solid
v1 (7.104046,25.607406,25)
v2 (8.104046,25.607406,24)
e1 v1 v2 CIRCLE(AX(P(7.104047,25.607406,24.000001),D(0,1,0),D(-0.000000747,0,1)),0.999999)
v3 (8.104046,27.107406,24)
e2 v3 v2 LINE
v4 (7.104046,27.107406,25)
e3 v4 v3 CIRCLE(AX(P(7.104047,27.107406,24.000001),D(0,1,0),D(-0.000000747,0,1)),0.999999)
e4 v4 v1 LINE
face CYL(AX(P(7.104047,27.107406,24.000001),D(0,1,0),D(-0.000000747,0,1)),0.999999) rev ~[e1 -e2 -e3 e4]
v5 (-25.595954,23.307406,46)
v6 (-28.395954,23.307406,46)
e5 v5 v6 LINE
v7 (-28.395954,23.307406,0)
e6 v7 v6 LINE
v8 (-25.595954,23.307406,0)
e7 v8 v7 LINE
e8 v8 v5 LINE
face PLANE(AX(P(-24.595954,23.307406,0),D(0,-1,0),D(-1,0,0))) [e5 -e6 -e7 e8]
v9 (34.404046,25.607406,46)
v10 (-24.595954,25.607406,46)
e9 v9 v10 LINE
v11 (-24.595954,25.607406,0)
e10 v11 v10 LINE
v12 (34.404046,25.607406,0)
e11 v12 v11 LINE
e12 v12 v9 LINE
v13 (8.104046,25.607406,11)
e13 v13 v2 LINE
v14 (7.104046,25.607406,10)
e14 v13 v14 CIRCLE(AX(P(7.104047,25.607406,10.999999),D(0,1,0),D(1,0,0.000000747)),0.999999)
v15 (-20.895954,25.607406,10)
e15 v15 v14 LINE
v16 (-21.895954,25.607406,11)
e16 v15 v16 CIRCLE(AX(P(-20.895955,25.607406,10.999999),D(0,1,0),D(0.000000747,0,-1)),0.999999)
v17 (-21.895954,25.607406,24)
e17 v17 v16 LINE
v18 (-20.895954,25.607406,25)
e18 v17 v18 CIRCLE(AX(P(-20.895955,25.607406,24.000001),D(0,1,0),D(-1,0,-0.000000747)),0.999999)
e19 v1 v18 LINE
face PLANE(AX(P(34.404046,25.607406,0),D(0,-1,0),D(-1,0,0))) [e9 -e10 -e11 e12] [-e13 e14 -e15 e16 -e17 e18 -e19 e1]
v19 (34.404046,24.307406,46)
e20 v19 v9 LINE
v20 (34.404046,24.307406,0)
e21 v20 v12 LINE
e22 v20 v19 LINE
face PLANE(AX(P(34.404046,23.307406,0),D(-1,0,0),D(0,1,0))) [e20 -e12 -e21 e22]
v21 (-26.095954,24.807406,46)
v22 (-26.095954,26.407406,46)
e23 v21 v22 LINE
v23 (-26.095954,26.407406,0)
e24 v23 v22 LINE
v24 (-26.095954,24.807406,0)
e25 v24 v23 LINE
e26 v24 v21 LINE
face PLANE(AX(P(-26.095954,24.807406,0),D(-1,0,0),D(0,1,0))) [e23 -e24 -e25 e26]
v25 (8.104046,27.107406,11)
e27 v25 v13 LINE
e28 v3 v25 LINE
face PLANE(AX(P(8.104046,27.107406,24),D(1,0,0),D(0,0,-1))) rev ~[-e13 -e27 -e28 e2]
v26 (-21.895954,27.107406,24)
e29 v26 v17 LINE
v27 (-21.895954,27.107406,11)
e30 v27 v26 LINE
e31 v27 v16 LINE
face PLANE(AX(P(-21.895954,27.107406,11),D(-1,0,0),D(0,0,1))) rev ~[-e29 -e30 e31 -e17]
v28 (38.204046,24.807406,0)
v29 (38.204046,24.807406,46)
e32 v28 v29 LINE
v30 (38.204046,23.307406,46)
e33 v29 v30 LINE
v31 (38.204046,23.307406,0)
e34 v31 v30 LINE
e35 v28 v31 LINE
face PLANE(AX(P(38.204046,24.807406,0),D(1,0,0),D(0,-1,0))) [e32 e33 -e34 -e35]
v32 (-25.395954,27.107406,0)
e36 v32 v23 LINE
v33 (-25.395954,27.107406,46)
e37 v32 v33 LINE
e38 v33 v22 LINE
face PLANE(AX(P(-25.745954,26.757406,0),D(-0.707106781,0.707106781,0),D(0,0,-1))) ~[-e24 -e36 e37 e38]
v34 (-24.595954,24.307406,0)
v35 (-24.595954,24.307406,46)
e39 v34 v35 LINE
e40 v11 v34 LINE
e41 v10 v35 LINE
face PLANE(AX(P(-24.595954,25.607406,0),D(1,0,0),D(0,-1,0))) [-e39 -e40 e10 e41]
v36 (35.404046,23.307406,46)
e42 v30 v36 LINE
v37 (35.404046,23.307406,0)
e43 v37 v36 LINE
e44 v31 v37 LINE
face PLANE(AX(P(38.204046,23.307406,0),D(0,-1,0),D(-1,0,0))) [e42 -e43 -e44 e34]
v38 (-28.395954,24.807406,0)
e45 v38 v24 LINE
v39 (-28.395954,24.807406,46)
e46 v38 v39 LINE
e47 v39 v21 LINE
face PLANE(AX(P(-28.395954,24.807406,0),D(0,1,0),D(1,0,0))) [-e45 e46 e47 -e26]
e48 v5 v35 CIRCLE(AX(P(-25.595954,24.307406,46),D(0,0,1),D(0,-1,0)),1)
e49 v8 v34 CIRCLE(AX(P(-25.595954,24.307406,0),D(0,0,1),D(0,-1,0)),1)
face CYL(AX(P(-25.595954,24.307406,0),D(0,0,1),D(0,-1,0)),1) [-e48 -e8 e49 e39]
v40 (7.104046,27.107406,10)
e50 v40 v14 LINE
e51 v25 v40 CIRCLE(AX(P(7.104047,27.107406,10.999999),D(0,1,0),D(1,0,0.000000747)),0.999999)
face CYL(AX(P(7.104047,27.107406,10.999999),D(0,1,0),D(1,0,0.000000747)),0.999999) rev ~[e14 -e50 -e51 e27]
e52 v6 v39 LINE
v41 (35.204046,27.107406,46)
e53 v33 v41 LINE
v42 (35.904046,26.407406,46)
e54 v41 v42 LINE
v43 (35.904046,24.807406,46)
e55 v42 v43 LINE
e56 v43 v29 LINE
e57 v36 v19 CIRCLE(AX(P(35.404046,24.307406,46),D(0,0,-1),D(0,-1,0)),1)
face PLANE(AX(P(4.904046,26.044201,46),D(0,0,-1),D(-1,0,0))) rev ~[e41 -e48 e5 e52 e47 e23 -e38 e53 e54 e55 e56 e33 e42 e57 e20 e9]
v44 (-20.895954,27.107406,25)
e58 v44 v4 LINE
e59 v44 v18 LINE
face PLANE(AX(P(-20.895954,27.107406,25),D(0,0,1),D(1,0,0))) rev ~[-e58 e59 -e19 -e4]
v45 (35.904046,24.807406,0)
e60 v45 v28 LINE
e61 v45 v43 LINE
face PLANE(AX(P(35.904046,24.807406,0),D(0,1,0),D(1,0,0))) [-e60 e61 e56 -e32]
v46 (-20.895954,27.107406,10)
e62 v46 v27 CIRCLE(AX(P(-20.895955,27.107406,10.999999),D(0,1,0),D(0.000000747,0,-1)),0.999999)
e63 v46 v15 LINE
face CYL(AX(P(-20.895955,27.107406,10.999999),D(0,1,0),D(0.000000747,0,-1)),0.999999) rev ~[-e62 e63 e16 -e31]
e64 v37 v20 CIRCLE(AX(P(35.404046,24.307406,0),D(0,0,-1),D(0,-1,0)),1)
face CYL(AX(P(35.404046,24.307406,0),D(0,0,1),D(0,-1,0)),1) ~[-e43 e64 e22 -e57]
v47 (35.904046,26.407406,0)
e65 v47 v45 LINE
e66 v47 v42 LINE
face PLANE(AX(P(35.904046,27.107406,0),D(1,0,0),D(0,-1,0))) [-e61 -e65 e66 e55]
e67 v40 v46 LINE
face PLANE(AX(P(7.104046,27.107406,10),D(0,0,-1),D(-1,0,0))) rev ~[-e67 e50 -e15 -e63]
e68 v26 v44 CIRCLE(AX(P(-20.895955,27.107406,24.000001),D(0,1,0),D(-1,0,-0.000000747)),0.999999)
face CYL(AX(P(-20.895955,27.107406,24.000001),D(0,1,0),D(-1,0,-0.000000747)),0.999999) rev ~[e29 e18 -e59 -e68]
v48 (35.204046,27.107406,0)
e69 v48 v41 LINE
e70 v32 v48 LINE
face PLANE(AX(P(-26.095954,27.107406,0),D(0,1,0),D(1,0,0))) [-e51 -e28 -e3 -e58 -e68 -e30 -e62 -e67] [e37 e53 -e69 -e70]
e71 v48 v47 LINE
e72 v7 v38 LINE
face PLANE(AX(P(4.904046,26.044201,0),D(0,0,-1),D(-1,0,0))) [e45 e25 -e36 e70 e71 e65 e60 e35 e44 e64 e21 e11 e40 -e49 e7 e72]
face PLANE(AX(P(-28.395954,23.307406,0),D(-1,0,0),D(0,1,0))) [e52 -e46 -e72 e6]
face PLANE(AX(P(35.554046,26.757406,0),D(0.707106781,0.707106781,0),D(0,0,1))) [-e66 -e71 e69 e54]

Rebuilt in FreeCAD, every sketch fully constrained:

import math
import FreeCAD as App
import Part
import Sketcher
from FreeCAD import Vector
Q = App.Units.Quantity


def edges_at(feature, points):
    """Names of the edges that pass closest to the given points."""
    edges = feature.Shape.Edges
    near = lambda p: min(range(len(edges)), key=lambda i: edges[i].distToShape(Part.Vertex(*p))[0])
    return sorted({f"Edge{near(p) + 1}" for p in points})

doc = App.newDocument("Part")
body = doc.addObject("PartDesign::Body", "Body")

# Sketch on XY plane
sketch1 = body.newObject("Sketcher::SketchObject", "Sketch")
sketch1.AttachmentSupport = (doc.getObject("XY_Plane"), [""])
sketch1.MapMode = "FlatFace"
sketch1.addGeometry(Part.LineSegment(Vector(35.904046, 27.107406, 0), Vector(-26.095954, 27.107406, 0)), False)
sketch1.addGeometry(Part.LineSegment(Vector(-26.095954, 27.107406, 0), Vector(-26.095954, 24.807406, 0)), False)
sketch1.addGeometry(Part.LineSegment(Vector(-26.095954, 24.807406, 0), Vector(-28.395954, 24.807406, 0)), False)
sketch1.addGeometry(Part.LineSegment(Vector(-28.395954, 24.807406, 0), Vector(-28.395954, 23.307406, 0)), False)
sketch1.addGeometry(Part.LineSegment(Vector(-28.395954, 23.307406, 0), Vector(-24.595954, 23.307406, 0)), False)
sketch1.addGeometry(Part.LineSegment(Vector(-24.595954, 23.307406, 0), Vector(-24.595954, 25.607406, 0)), False)
sketch1.addGeometry(Part.LineSegment(Vector(-24.595954, 25.607406, 0), Vector(34.404046, 25.607406, 0)), False)
sketch1.addGeometry(Part.LineSegment(Vector(34.404046, 25.607406, 0), Vector(34.404046, 23.307406, 0)), False)
sketch1.addGeometry(Part.LineSegment(Vector(34.404046, 23.307406, 0), Vector(38.204046, 23.307406, 0)), False)
sketch1.addGeometry(Part.LineSegment(Vector(38.204046, 23.307406, 0), Vector(38.204046, 24.807406, 0)), False)
sketch1.addGeometry(Part.LineSegment(Vector(38.204046, 24.807406, 0), Vector(35.904046, 24.807406, 0)), False)
sketch1.addGeometry(Part.LineSegment(Vector(35.904046, 24.807406, 0), Vector(35.904046, 27.107406, 0)), False)
sketch1.addConstraint(Sketcher.Constraint("Coincident", 0, 2, 1, 1))
sketch1.addConstraint(Sketcher.Constraint("Coincident", 1, 2, 2, 1))
sketch1.addConstraint(Sketcher.Constraint("Coincident", 2, 2, 3, 1))
sketch1.addConstraint(Sketcher.Constraint("Coincident", 3, 2, 4, 1))
sketch1.addConstraint(Sketcher.Constraint("Coincident", 4, 2, 5, 1))
sketch1.addConstraint(Sketcher.Constraint("Coincident", 5, 2, 6, 1))
sketch1.addConstraint(Sketcher.Constraint("Coincident", 6, 2, 7, 1))
sketch1.addConstraint(Sketcher.Constraint("Coincident", 7, 2, 8, 1))
sketch1.addConstraint(Sketcher.Constraint("Coincident", 8, 2, 9, 1))
sketch1.addConstraint(Sketcher.Constraint("Coincident", 9, 2, 10, 1))
sketch1.addConstraint(Sketcher.Constraint("Coincident", 10, 2, 11, 1))
sketch1.addConstraint(Sketcher.Constraint("Coincident", 11, 2, 0, 1))
sketch1.addConstraint(Sketcher.Constraint("Horizontal", 0))
sketch1.addConstraint(Sketcher.Constraint("Vertical", 1))
sketch1.addConstraint(Sketcher.Constraint("Horizontal", 2))
sketch1.addConstraint(Sketcher.Constraint("Vertical", 3))
sketch1.addConstraint(Sketcher.Constraint("Horizontal", 4))
sketch1.addConstraint(Sketcher.Constraint("Vertical", 5))
sketch1.addConstraint(Sketcher.Constraint("Horizontal", 6))
sketch1.addConstraint(Sketcher.Constraint("Vertical", 7))
sketch1.addConstraint(Sketcher.Constraint("Horizontal", 8))
sketch1.addConstraint(Sketcher.Constraint("Vertical", 9))
sketch1.addConstraint(Sketcher.Constraint("Horizontal", 10))
sketch1.addConstraint(Sketcher.Constraint("Vertical", 11))
sketch1.addConstraint(Sketcher.Constraint("Horizontal", 4, 2, 7, 2))
sketch1.addConstraint(Sketcher.Constraint("Horizontal", 2, 2, 9, 2))
sketch1.addConstraint(Sketcher.Constraint("Equal", 4, 8))
sketch1.addConstraint(Sketcher.Constraint("Equal", 2, 10))
sketch1.addConstraint(Sketcher.Constraint("Equal", 10, 1))
sketch1.addConstraint(Sketcher.Constraint("Equal", 1, 5))
sketch1.addConstraint(Sketcher.Constraint("DistanceX", 0, 2, 0, 1, Q("62 mm")))
sketch1.addConstraint(Sketcher.Constraint("DistanceX", 6, 1, 6, 2, Q("59 mm")))
sketch1.addConstraint(Sketcher.Constraint("DistanceX", 2, 2, 2, 1, Q("2.3 mm")))
sketch1.addConstraint(Sketcher.Constraint("DistanceY", 3, 2, 3, 1, Q("1.5 mm")))
sketch1.addConstraint(Sketcher.Constraint("DistanceX", 0, 2, -1, 1, Q("26.095954 mm")))
sketch1.addConstraint(Sketcher.Constraint("DistanceY", -1, 1, 0, 2, Q("27.107406 mm")))
pad1 = body.newObject("PartDesign::Pad", "Pad")
pad1.Profile = sketch1
pad1.Length = 46
doc.recompute()

chamfer = body.newObject("PartDesign::Chamfer", "Chamfer")
chamfer.Base = (pad1, edges_at(pad1, [(35.904, 27.107, 23), (-26.096, 27.107, 23)]))
chamfer.Size = 0.7
doc.recompute()

fillet = body.newObject("PartDesign::Fillet", "Fillet")
fillet.Base = (chamfer, edges_at(chamfer, [(-24.596, 23.307, 23), (34.404, 23.307, 23)]))
fillet.Radius = 1

# Sketch on XZ plane
sketch2 = body.newObject("Sketcher::SketchObject", "Sketch001")
sketch2.AttachmentSupport = (doc.getObject("XZ_Plane"), [""])
sketch2.MapMode = "FlatFace"
sketch2.AttachmentOffset = App.Placement(Vector(0, 0, -27.107406), App.Rotation())
sketch2.addGeometry(Part.LineSegment(Vector(-20.895954, 25, 0), Vector(7.104046, 25, 0)), False)
sketch2.addGeometry(Part.ArcOfCircle(Part.Circle(Vector(7.104047, 24.000001, 0), Vector(0, 0, 1), 0.999999), math.radians(-0.000043), math.radians(90.000043)), False)
sketch2.addGeometry(Part.LineSegment(Vector(8.104046, 24, 0), Vector(8.104046, 11, 0)), False)
sketch2.addGeometry(Part.ArcOfCircle(Part.Circle(Vector(7.104047, 10.999999, 0), Vector(0, 0, 1), 0.999999), math.radians(-90.000043), math.radians(0.000043)), False)
sketch2.addGeometry(Part.LineSegment(Vector(7.104046, 10, 0), Vector(-20.895954, 10, 0)), False)
sketch2.addGeometry(Part.ArcOfCircle(Part.Circle(Vector(-20.895955, 10.999999, 0), Vector(0, 0, 1), 0.999999), math.radians(179.999957), math.radians(270.000043)), False)
sketch2.addGeometry(Part.LineSegment(Vector(-21.895954, 11, 0), Vector(-21.895954, 24, 0)), False)
sketch2.addGeometry(Part.ArcOfCircle(Part.Circle(Vector(-20.895955, 24.000001, 0), Vector(0, 0, 1), 0.999999), math.radians(89.999957), math.radians(180.000043)), False)
sketch2.addConstraint(Sketcher.Constraint("Tangent", 0, 2, 1, 2))
sketch2.addConstraint(Sketcher.Constraint("Tangent", 1, 1, 2, 1))
sketch2.addConstraint(Sketcher.Constraint("Tangent", 2, 2, 3, 2))
sketch2.addConstraint(Sketcher.Constraint("Tangent", 3, 1, 4, 1))
sketch2.addConstraint(Sketcher.Constraint("Tangent", 4, 2, 5, 2))
sketch2.addConstraint(Sketcher.Constraint("Tangent", 5, 1, 6, 1))
sketch2.addConstraint(Sketcher.Constraint("Tangent", 6, 2, 7, 2))
sketch2.addConstraint(Sketcher.Constraint("Tangent", 7, 1, 0, 1))
sketch2.addConstraint(Sketcher.Constraint("Horizontal", 0))
sketch2.addConstraint(Sketcher.Constraint("Vertical", 2))
sketch2.addConstraint(Sketcher.Constraint("Horizontal", 4))
sketch2.addConstraint(Sketcher.Constraint("Vertical", 6))
sketch2.addConstraint(Sketcher.Constraint("Equal", 1, 3))
sketch2.addConstraint(Sketcher.Constraint("Equal", 3, 5))
sketch2.addConstraint(Sketcher.Constraint("Equal", 5, 7))
sketch2.addConstraint(Sketcher.Constraint("Radius", 1, Q("0.999999 mm")))
sketch2.addConstraint(Sketcher.Constraint("DistanceX", 0, 1, 0, 2, Q("28 mm")))
sketch2.addConstraint(Sketcher.Constraint("DistanceY", 2, 2, 2, 1, Q("13 mm")))
sketch2.addConstraint(Sketcher.Constraint("DistanceY", -1, 1, 1, 3, Q("24.000001 mm")))
sketch2.addConstraint(Sketcher.Constraint("DistanceX", -1, 1, 1, 3, Q("7.104047 mm")))
pocket1 = body.newObject("PartDesign::Pocket", "Pocket")
pocket1.Profile = sketch2
pocket1.Length = 2
pocket1.Reversed = True

doc.recompute()
